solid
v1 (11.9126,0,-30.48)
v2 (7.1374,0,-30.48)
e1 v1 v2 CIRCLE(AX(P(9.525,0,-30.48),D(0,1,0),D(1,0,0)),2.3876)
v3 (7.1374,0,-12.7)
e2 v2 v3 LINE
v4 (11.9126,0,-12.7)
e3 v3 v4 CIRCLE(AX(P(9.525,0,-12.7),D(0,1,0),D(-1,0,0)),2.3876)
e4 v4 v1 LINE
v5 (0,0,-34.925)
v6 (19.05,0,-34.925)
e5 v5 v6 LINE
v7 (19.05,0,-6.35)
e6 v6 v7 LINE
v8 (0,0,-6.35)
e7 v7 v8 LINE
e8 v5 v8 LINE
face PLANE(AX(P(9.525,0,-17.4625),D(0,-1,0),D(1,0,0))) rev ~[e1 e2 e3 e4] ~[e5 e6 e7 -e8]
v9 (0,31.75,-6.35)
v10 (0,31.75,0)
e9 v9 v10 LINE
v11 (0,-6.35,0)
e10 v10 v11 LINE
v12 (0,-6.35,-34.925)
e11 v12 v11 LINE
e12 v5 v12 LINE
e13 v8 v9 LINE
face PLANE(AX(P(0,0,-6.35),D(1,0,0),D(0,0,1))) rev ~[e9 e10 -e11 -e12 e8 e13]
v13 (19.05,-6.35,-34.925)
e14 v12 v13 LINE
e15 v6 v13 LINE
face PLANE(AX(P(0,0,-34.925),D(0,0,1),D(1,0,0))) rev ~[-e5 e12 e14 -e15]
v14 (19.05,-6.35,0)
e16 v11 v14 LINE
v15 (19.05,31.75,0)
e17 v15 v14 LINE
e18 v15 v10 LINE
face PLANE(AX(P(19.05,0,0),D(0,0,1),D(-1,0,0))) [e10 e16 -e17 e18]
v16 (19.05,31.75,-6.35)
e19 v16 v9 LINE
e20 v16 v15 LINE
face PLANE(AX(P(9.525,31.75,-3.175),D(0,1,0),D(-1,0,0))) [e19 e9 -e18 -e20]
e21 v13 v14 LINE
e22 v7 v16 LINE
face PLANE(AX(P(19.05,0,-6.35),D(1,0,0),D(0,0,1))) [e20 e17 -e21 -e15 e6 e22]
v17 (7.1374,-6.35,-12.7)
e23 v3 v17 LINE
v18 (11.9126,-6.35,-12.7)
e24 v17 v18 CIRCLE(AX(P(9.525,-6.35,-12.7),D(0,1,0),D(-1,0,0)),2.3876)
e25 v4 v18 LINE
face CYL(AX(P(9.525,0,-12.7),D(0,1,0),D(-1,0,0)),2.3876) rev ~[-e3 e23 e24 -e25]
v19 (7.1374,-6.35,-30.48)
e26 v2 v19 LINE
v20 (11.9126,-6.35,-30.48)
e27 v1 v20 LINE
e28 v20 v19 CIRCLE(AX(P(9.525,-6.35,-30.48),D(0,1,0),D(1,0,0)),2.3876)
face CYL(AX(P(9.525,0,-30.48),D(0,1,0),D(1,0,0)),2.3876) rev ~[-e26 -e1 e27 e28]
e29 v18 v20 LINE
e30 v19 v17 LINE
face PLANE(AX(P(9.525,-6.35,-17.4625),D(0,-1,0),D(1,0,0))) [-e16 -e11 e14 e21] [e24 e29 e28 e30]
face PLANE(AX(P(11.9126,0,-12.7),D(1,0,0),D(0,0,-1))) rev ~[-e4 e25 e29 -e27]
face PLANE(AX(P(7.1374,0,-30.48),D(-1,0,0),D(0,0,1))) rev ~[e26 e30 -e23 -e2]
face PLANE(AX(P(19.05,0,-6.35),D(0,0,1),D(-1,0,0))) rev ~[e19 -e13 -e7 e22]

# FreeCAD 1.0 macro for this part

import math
import FreeCAD as App
import Part
import Sketcher

V = App.Vector
Q = App.Units.Quantity

doc = App.newDocument("Part")
params = doc.addObject("Spreadsheet::Sheet", "Params")
for row, (alias, value) in enumerate([
    ("sketch1_height", "0.7 in"),
    ("sketch1_radius", "0.094 in"),
    ("sketch1_width", "0.75 in"),
    ("sketch1_height2", "1.375 in"),
    ("pad1_length", "0.25 in"),
    ("sketch2_width", "0.75 in"),
    ("sketch2_height", "0.25 in"),
    ("pad2_length", "1.25 in"),
], start=1):
    params.set(f"A{row}", alias)
    params.set(f"B{row}", "=" + value)
    params.setAlias(f"B{row}", alias)

body = doc.addObject("PartDesign::Body", "Body")

# Sketch on XZ plane
sketch1 = body.newObject("Sketcher::SketchObject", "Sketch")
sketch1.AttachmentSupport = (doc.getObject("XZ_Plane"), [""])
sketch1.MapMode = "FlatFace"
sketch1.addGeometry([
    Part.LineSegment(V(0, 0, 0), V(0, -34.9, 0)),  # 0
    Part.LineSegment(V(0, -34.9, 0), V(19.1, -34.9, 0)),  # 1
    Part.LineSegment(V(19.1, -34.9, 0), V(19.1, 0, 0)),  # 2
    Part.LineSegment(V(19.1, 0, 0), V(0, 0, 0)),  # 3
    Part.LineSegment(V(7.1, -30.5, 0), V(7.1, -12.7, 0)),  # 4
    Part.ArcOfCircle(Part.Circle(V(9.5, -12.7, 0), V(0, 0, 1), 2.4), math.radians(0), math.radians(180)),  # 5
    Part.LineSegment(V(11.9, -12.7, 0), V(11.9, -30.5, 0)),  # 6
    Part.ArcOfCircle(Part.Circle(V(9.5, -30.5, 0), V(0, 0, 1), 2.4), math.radians(180), math.radians(360)),  # 7
], False)
sketch1.addConstraint([
    Sketcher.Constraint("Coincident", 0, 2, 1, 1),
    Sketcher.Constraint("Coincident", 1, 2, 2, 1),
    Sketcher.Constraint("Coincident", 2, 2, 3, 1),
    Sketcher.Constraint("Coincident", 3, 2, 0, 1),
    Sketcher.Constraint("Tangent", 4, 2, 5, 2),
    Sketcher.Constraint("Tangent", 5, 1, 6, 1),
    Sketcher.Constraint("Tangent", 6, 2, 7, 2),
    Sketcher.Constraint("Tangent", 7, 1, 4, 1),
    Sketcher.Constraint("Vertical", 0),
    Sketcher.Constraint("Horizontal", 1),
    Sketcher.Constraint("Vertical", 2),
    Sketcher.Constraint("Horizontal", 3),
    Sketcher.Constraint("Vertical", 4),
    Sketcher.Constraint("Vertical", 6),
    Sketcher.Constraint("Coincident", 3, 2, -1, 1),
    Sketcher.Constraint("DistanceY", 4, 1, 4, 2, Q("0.7 in")),
    Sketcher.Constraint("Radius", 5, Q("0.094 in")),
    Sketcher.Constraint("DistanceX", 1, 1, 1, 2, Q("0.75 in")),
    Sketcher.Constraint("DistanceY", 5, 3, -1, 1, Q("0.5 in")),
    Sketcher.Constraint("DistanceY", 0, 2, 0, 1, Q("1.375 in")),
    Sketcher.Constraint("DistanceX", -1, 1, 5, 3, Q("0.375 in")),
])
sketch1.setExpression("Constraints[15]", "Params.sketch1_height")
sketch1.setExpression("Constraints[16]", "Params.sketch1_radius")
sketch1.setExpression("Constraints[17]", "Params.sketch1_width")
sketch1.setExpression("Constraints[19]", "Params.sketch1_height2")
pad1 = body.newObject("PartDesign::Pad", "Pad")
pad1.Profile = sketch1
pad1.setExpression("Length", "Params.pad1_length")

# Sketch on XZ plane
sketch2 = body.newObject("Sketcher::SketchObject", "Sketch001")
sketch2.AttachmentSupport = (doc.getObject("XZ_Plane"), [""])
sketch2.MapMode = "FlatFace"
sketch2.addGeometry([
    Part.LineSegment(V(19, 0, 0), V(19, -6, 0)),
    Part.LineSegment(V(19, -6, 0), V(0, -6, 0)),
    Part.LineSegment(V(0, -6, 0), V(0, 0, 0)),
    Part.LineSegment(V(0, 0, 0), V(19, 0, 0)),
], False)
sketch2.addConstraint([
    Sketcher.Constraint("Coincident", 0, 2, 1, 1),
    Sketcher.Constraint("Coincident", 1, 2, 2, 1),
    Sketcher.Constraint("Coincident", 2, 2, 3, 1),
    Sketcher.Constraint("Coincident", 3, 2, 0, 1),
    Sketcher.Constraint("Vertical", 0),
    Sketcher.Constraint("Horizontal", 1),
    Sketcher.Constraint("Vertical", 2),
    Sketcher.Constraint("Horizontal", 3),
    Sketcher.Constraint("Coincident", 2, 2, -1, 1),
    Sketcher.Constraint("DistanceX", 1, 2, 1, 1, Q("0.75 in")),
    Sketcher.Constraint("DistanceY", 0, 2, 0, 1, Q("0.25 in")),
])
sketch2.setExpression("Constraints[9]", "Params.sketch2_width")
sketch2.setExpression("Constraints[10]", "Params.sketch2_height")
pad2 = body.newObject("PartDesign::Pad", "Pad001")
pad2.Profile = sketch2
pad2.setExpression("Length", "Params.pad2_length")
pad2.Reversed = True

doc.recompute()
